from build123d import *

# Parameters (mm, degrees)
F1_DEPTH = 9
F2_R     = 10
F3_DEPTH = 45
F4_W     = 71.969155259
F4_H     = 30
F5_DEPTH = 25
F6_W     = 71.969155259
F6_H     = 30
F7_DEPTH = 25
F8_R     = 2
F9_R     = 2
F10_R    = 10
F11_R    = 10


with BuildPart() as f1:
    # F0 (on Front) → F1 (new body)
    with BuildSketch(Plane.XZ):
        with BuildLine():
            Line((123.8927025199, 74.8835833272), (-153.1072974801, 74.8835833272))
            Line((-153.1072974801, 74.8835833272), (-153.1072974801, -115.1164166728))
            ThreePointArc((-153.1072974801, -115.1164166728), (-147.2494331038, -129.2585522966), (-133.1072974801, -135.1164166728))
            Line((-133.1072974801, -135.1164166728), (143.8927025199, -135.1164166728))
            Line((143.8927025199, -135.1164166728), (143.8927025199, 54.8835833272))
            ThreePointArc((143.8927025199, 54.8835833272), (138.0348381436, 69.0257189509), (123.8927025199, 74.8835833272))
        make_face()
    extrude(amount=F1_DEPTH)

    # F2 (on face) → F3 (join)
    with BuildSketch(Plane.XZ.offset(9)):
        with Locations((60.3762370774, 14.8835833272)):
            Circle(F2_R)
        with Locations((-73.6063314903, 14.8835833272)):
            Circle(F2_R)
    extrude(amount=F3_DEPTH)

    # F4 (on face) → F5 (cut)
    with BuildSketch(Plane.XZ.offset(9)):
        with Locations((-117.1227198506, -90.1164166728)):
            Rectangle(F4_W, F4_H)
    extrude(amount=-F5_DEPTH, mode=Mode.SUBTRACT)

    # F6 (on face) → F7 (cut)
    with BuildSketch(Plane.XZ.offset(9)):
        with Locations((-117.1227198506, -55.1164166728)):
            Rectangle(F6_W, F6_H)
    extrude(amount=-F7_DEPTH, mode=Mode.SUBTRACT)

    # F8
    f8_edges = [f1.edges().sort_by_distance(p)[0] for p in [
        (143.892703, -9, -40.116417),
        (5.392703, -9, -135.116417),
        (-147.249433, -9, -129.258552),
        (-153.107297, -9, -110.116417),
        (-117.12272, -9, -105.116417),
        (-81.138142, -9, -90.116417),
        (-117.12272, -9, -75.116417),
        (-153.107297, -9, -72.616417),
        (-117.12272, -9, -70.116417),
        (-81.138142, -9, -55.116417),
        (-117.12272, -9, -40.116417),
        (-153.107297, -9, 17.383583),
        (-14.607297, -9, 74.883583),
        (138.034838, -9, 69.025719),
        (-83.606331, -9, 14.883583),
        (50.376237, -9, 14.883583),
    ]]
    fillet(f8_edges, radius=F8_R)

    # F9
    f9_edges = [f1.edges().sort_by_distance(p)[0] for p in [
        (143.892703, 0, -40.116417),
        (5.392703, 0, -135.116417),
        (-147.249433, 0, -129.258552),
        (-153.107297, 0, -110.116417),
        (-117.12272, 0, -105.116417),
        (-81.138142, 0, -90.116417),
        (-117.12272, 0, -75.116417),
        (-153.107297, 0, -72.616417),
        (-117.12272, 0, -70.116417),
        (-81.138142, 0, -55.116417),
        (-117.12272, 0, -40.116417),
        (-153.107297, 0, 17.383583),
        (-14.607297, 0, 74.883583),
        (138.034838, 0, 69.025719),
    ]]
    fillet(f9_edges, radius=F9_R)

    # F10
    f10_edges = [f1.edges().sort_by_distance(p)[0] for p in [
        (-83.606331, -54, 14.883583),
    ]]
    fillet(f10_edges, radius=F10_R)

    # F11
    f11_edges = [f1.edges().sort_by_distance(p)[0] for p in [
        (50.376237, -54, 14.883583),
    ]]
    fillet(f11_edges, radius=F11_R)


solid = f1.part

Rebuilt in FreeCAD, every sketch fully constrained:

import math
import FreeCAD as App
import Part
import Sketcher
Q = App.Units.Quantity


def edges_at(feature, points):
    """Names of the edges that pass closest to the given points."""
    edges = feature.Shape.Edges
    near = lambda p: min(range(len(edges)), key=lambda i: edges[i].distToShape(Part.Vertex(*p))[0])
    return sorted({f"Edge{near(p) + 1}" for p in points})


def add_polygon(sketch, points):
    """Adds a closed chain of lines whose ends are joined by coincident constraints."""
    first, n = sketch.GeometryCount, len(points)
    for a, b in zip(points, points[1:] + points[:1]):
        sketch.addGeometry(Part.LineSegment(App.Vector(*a, 0), App.Vector(*b, 0)), False)
    for i in range(n):
        sketch.addConstraint(Sketcher.Constraint("Coincident", first + i, 2, first + (i + 1) % n, 1))

doc = App.newDocument("Part")
body = doc.addObject("PartDesign::Body", "Body")

sketch1 = body.newObject("Sketcher::SketchObject", "Sketch")
sketch1.AttachmentSupport = (doc.getObject("XZ_Plane"), [""])
sketch1.MapMode = "FlatFace"
sketch1.addGeometry([
    Part.LineSegment(App.Vector(123.892703, 74.883583, 0), App.Vector(-153.107297, 74.883583, 0)),
    Part.LineSegment(App.Vector(-153.107297, 74.883583, 0), App.Vector(-153.107297, -115.116417, 0)),
    Part.ArcOfCircle(Part.Circle(App.Vector(-133.107297, -115.116417, 0), App.Vector(0, 0, 1), 20), math.radians(180), math.radians(270)),
    Part.LineSegment(App.Vector(-133.107297, -135.116417, 0), App.Vector(143.892703, -135.116417, 0)),
    Part.LineSegment(App.Vector(143.892703, -135.116417, 0), App.Vector(143.892703, 54.883583, 0)),
    Part.ArcOfCircle(Part.Circle(App.Vector(123.892703, 54.883583, 0), App.Vector(0, 0, 1), 20), math.radians(0), math.radians(90)),
], False)
sketch1.addConstraint([
    Sketcher.Constraint("Coincident", 0, 2, 1, 1),
    Sketcher.Constraint("Tangent", 1, 2, 2, 1),
    Sketcher.Constraint("Tangent", 2, 2, 3, 1),
    Sketcher.Constraint("Coincident", 3, 2, 4, 1),
    Sketcher.Constraint("Tangent", 4, 2, 5, 1),
    Sketcher.Constraint("Tangent", 5, 2, 0, 1),
    Sketcher.Constraint("Horizontal", 0),
    Sketcher.Constraint("Vertical", 1),
    Sketcher.Constraint("Horizontal", 3),
    Sketcher.Constraint("Vertical", 4),
    Sketcher.Constraint("Equal", 2, 5),
    Sketcher.Constraint("Radius", 2, Q("20 mm")),
    Sketcher.Constraint("DistanceX", 0, 2, 0, 1, Q("277 mm")),
    Sketcher.Constraint("DistanceY", 1, 2, 1, 1, Q("190 mm")),
    Sketcher.Constraint("DistanceX", 2, 3, -1, 1, Q("133.107297 mm")),
    Sketcher.Constraint("DistanceY", 2, 3, -1, 1, Q("115.116417 mm")),
])
pad1 = body.newObject("PartDesign::Pad", "Pad")
pad1.Profile = sketch1
pad1.Length = 9

sketch2 = body.newObject("Sketcher::SketchObject", "Sketch001")
sketch2.AttachmentSupport = (doc.getObject("XZ_Plane"), [""])
sketch2.MapMode = "FlatFace"
sketch2.AttachmentOffset = App.Placement(App.Vector(0, 0, 9), App.Rotation())
sketch2.addGeometry([
    Part.Circle(App.Vector(60.376237, 14.883583, 0), App.Vector(0, 0, 1), 10),
    Part.Circle(App.Vector(-73.606331, 14.883583, 0), App.Vector(0, 0, 1), 10),
], False)
sketch2.addConstraint([
    Sketcher.Constraint("Equal", 0, 1),
    Sketcher.Constraint("Horizontal", 0, 3, 1, 3),
    Sketcher.Constraint("Diameter", 0, Q("20 mm")),
    Sketcher.Constraint("DistanceX", 1, 3, -1, 1, Q("73.606331 mm")),
    Sketcher.Constraint("DistanceX", 1, 3, 0, 3, Q("133.982569 mm")),
    Sketcher.Constraint("DistanceY", -1, 1, 0, 3, Q("14.883583 mm")),
])
pad2 = body.newObject("PartDesign::Pad", "Pad001")
pad2.Profile = sketch2
pad2.Length = 45

sketch3 = body.newObject("Sketcher::SketchObject", "Sketch002")
sketch3.AttachmentSupport = (doc.getObject("XZ_Plane"), [""])
sketch3.MapMode = "FlatFace"
sketch3.AttachmentOffset = App.Placement(App.Vector(0, 0, 9), App.Rotation())
add_polygon(sketch3, [(-153.107297, -75.116417), (-153.107297, -105.116417), (-81.138142, -105.116417), (-81.138142, -75.116417)])
sketch3.addConstraint([
    Sketcher.Constraint("Vertical", 0),
    Sketcher.Constraint("Horizontal", 1),
    Sketcher.Constraint("Vertical", 2),
    Sketcher.Constraint("Horizontal", 3),
    Sketcher.Constraint("DistanceY", 0, 2, 0, 1, Q("30 mm")),
    Sketcher.Constraint("DistanceX", 1, 1, 1, 2, Q("71.969155 mm")),
    Sketcher.Constraint("DistanceX", 0, 2, -1, 1, Q("153.107297 mm")),
    Sketcher.Constraint("DistanceY", 0, 2, -1, 1, Q("105.116417 mm")),
])
pocket1 = body.newObject("PartDesign::Pocket", "Pocket")
pocket1.Profile = sketch3
pocket1.Length = 25

sketch4 = body.newObject("Sketcher::SketchObject", "Sketch003")
sketch4.AttachmentSupport = (doc.getObject("XZ_Plane"), [""])
sketch4.MapMode = "FlatFace"
sketch4.AttachmentOffset = App.Placement(App.Vector(0, 0, 9), App.Rotation())
add_polygon(sketch4, [(-153.107297, -40.116417), (-153.107297, -70.116417), (-81.138142, -70.116417), (-81.138142, -40.116417)])
sketch4.addConstraint([
    Sketcher.Constraint("Vertical", 0),
    Sketcher.Constraint("Horizontal", 1),
    Sketcher.Constraint("Vertical", 2),
    Sketcher.Constraint("Horizontal", 3),
    Sketcher.Constraint("DistanceY", 0, 2, 0, 1, Q("30 mm")),
    Sketcher.Constraint("DistanceX", 1, 1, 1, 2, Q("71.969155 mm")),
    Sketcher.Constraint("DistanceX", 0, 2, -1, 1, Q("153.107297 mm")),
    Sketcher.Constraint("DistanceY", 0, 2, -1, 1, Q("70.116417 mm")),
])
pocket2 = body.newObject("PartDesign::Pocket", "Pocket001")
pocket2.Profile = sketch4
pocket2.Length = 25
doc.recompute()

fillet = body.newObject("PartDesign::Fillet", "Fillet")
fillet.Base = (pocket2, edges_at(pocket2, [
    (143.893, -9, -40.116),
    (5.393, -9, -135.116),
    (-147.249, -9, -129.259),
    (-153.107, -9, -110.116),
    (-117.123, -9, -105.116),
    (-81.138, -9, -90.116),
    (-117.123, -9, -75.116),
    (-153.107, -9, -72.616),
    (-117.123, -9, -70.116),
    (-81.138, -9, -55.116),
    (-117.123, -9, -40.116),
    (-153.107, -9, 17.384),
    (-14.607, -9, 74.884),
    (138.035, -9, 69.026),
    (-83.606, -9, 14.884),
    (50.376, -9, 14.884),
]))
fillet.Radius = 2
doc.recompute()

fillet2 = body.newObject("PartDesign::Fillet", "Fillet001")
fillet2.Base = (fillet, edges_at(fillet, [
    (143.893, 0, -40.116),
    (5.393, 0, -135.116),
    (-147.249, 0, -129.259),
    (-153.107, 0, -110.116),
    (-117.123, 0, -105.116),
    (-81.138, 0, -90.116),
    (-117.123, 0, -75.116),
    (-153.107, 0, -72.616),
    (-117.123, 0, -70.116),
    (-81.138, 0, -55.116),
    (-117.123, 0, -40.116),
    (-153.107, 0, 17.384),
    (-14.607, 0, 74.884),
    (138.035, 0, 69.026),
]))
fillet2.Radius = 2
doc.recompute()

fillet3 = body.newObject("PartDesign::Fillet", "Fillet002")
fillet3.Base = (fillet2, edges_at(fillet2, [(-83.606, -54, 14.884)]))
fillet3.Radius = 10
doc.recompute()

fillet4 = body.newObject("PartDesign::Fillet", "Fillet003")
fillet4.Base = (fillet3, edges_at(fillet3, [(50.376, -54, 14.884)]))
fillet4.Radius = 10

doc.recompute()
